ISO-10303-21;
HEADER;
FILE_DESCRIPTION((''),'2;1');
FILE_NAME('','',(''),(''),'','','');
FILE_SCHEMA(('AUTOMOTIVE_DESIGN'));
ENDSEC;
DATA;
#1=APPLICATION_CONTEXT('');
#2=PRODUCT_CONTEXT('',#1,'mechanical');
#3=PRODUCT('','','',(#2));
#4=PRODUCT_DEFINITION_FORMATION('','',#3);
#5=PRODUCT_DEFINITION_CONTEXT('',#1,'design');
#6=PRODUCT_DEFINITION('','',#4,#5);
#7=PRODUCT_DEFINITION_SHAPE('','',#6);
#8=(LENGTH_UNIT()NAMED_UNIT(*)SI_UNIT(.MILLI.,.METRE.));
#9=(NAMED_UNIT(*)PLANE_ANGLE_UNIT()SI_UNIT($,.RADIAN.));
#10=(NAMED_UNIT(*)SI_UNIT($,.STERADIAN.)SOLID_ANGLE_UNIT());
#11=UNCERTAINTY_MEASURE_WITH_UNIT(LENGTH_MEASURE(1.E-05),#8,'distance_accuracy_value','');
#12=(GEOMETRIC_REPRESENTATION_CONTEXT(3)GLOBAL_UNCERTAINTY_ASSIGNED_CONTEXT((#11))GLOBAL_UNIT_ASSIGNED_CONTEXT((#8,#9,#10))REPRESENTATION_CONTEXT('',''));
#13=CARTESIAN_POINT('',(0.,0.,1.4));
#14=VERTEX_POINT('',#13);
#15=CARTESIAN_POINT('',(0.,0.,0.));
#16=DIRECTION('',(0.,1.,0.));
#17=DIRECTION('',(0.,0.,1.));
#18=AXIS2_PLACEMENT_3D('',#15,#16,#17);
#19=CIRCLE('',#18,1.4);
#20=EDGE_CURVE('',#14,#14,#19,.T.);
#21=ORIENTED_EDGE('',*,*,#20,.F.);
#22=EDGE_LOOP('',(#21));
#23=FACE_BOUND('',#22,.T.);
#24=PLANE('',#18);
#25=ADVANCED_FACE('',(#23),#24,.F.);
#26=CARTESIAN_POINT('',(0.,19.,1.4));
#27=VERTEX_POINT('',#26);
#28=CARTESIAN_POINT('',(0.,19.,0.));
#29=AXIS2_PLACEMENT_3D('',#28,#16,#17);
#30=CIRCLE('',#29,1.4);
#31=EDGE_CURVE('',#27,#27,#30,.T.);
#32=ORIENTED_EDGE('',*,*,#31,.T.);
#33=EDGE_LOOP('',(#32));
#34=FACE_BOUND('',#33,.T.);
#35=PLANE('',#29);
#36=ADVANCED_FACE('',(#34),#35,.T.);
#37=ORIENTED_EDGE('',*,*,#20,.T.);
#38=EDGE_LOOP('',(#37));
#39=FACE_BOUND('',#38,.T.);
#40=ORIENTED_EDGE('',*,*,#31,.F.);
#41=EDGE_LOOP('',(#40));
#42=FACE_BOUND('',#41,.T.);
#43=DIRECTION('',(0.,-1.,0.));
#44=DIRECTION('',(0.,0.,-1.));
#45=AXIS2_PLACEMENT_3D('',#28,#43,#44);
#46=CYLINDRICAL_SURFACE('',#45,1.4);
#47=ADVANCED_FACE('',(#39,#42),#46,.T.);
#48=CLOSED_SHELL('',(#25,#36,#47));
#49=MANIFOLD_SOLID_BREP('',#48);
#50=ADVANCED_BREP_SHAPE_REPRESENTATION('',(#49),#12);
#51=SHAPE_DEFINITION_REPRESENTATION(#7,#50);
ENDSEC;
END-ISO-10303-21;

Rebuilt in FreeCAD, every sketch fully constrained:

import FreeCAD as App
import Part
import Sketcher

V = App.Vector
Q = App.Units.Quantity

doc = App.newDocument("Part")
body = doc.addObject("PartDesign::Body", "Body")

# Sketch on XZ plane
sketch1 = body.newObject("Sketcher::SketchObject", "Sketch")
sketch1.AttachmentSupport = (doc.getObject("XZ_Plane"), [""])
sketch1.MapMode = "FlatFace"
sketch1.addGeometry(Part.Circle(V(0, 0, 0), V(0, 0, 1), 1.4), False)
sketch1.addConstraint(Sketcher.Constraint("Coincident", 0, 3, -1, 1))
sketch1.addConstraint(Sketcher.Constraint("Diameter", 0, Q("2.8 mm")))
pad1 = body.newObject("PartDesign::Pad", "Pad")
pad1.Profile = sketch1
pad1.Length = 19
pad1.Reversed = True

doc.recompute()
